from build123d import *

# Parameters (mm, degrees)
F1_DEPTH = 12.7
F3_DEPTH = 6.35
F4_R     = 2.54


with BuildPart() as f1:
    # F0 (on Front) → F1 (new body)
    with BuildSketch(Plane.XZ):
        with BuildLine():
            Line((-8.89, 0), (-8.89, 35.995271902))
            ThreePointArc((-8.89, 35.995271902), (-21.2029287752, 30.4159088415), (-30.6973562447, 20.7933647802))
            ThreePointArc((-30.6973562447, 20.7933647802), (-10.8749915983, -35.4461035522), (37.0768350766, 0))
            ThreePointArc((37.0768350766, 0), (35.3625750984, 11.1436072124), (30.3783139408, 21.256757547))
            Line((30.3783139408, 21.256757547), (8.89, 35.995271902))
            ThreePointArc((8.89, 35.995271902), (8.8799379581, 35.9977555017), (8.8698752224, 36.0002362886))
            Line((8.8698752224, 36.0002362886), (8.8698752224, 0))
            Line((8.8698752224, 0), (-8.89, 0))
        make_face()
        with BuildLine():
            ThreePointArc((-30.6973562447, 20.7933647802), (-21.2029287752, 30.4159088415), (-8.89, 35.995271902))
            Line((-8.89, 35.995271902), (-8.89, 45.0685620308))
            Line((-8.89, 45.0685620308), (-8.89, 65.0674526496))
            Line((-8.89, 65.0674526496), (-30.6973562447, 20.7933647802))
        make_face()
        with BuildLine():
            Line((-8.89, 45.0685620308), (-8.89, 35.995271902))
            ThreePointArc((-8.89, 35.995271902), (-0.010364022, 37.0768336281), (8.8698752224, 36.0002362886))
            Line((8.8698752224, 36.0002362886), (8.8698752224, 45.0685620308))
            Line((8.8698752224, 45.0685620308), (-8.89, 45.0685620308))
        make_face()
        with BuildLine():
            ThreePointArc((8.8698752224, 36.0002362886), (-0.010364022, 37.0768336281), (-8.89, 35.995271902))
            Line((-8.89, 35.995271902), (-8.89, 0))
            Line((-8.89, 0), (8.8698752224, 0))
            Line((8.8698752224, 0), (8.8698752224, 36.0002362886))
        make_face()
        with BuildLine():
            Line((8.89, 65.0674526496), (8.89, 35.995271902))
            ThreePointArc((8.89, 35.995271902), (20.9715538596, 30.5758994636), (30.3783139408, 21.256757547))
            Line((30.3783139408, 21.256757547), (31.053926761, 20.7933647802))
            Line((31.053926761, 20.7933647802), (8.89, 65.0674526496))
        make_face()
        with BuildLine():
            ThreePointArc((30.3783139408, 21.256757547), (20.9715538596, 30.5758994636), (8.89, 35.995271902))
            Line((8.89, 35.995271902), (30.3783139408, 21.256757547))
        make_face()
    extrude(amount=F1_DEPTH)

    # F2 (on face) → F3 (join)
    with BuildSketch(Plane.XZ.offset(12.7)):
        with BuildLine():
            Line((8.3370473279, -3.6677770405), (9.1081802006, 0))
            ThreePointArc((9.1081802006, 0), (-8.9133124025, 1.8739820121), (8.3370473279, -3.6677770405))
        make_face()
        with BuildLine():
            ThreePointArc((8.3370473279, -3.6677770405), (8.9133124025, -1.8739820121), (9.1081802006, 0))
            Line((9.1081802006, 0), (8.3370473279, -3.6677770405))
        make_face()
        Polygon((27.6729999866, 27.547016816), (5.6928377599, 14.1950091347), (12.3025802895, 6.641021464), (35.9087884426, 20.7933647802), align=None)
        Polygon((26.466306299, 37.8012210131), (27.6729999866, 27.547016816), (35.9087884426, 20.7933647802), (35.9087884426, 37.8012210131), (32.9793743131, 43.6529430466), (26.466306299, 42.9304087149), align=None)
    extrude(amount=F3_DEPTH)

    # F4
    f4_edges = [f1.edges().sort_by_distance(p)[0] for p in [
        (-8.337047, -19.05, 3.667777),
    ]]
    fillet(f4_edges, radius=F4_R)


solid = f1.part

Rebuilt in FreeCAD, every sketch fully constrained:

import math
import FreeCAD as App
import Part
import Sketcher

V = App.Vector
Q = App.Units.Quantity


def edges_at(feature, points):
    """Names of the edges that pass closest to the given points."""
    edges = feature.Shape.Edges
    near = lambda p: min(range(len(edges)), key=lambda i: edges[i].distToShape(Part.Vertex(*p))[0])
    return sorted({f"Edge{near(p) + 1}" for p in points})


def add_polygon(sketch, points):
    """Adds a closed chain of lines whose ends are joined by coincident constraints."""
    first, n = sketch.GeometryCount, len(points)
    for a, b in zip(points, points[1:] + points[:1]):
        sketch.addGeometry(Part.LineSegment(App.Vector(*a, 0), App.Vector(*b, 0)), False)
    for i in range(n):
        sketch.addConstraint(Sketcher.Constraint("Coincident", first + i, 2, first + (i + 1) % n, 1))

doc = App.newDocument("Part")
params = doc.addObject("Spreadsheet::Sheet", "Params")
for row, (alias, value) in enumerate([
    ("pad1_length", "0.5 in"),
    ("pad2_length", "0.25 in"),
    ("fillet_radius", "0.1 in"),
], start=1):
    params.set(f"A{row}", alias)
    params.set(f"B{row}", "=" + value)
    params.setAlias(f"B{row}", alias)

body = doc.addObject("PartDesign::Body", "Body")

# Sketch on XZ plane
sketch1 = body.newObject("Sketcher::SketchObject", "Sketch")
sketch1.AttachmentSupport = (doc.getObject("XZ_Plane"), [""])
sketch1.MapMode = "FlatFace"
sketch1.addGeometry(Part.ArcOfCircle(Part.Circle(V(0.000201, 0.000815, 0), V(0, 0, 1), 37.075995), math.radians(76.126895), math.radians(76.158927)), False)
sketch1.addGeometry(Part.LineSegment(V(8.869875, 36.000236, 0), V(8.869875, 45.068562, 0)), False)
sketch1.addGeometry(Part.LineSegment(V(8.869875, 45.068562, 0), V(-8.89, 45.068562, 0)), False)
sketch1.addGeometry(Part.LineSegment(V(-8.89, 45.068562, 0), V(-8.89, 65.067453, 0)), False)
sketch1.addGeometry(Part.LineSegment(V(-8.89, 65.067453, 0), V(-30.697356, 20.793365, 0)), False)
sketch1.addGeometry(Part.ArcOfCircle(Part.Circle(V(0, 0, 0), V(0, 0, 1), 37.076835), math.radians(145.887598), math.radians(360)), False)
sketch1.addGeometry(Part.ArcOfCircle(Part.Circle(V(0, 0, 0), V(0, 0, 1), 37.076835), math.radians(0), math.radians(34.981814)), False)
sketch1.addGeometry(Part.LineSegment(V(30.378314, 21.256758, 0), V(31.053927, 20.793365, 0)), False)
sketch1.addGeometry(Part.LineSegment(V(31.053927, 20.793365, 0), V(8.89, 65.067453, 0)), False)
sketch1.addGeometry(Part.LineSegment(V(8.89, 65.067453, 0), V(8.89, 35.995272, 0)), False)
sketch1.addConstraint(Sketcher.Constraint("Coincident", 0, 2, 1, 1))
sketch1.addConstraint(Sketcher.Constraint("Coincident", 1, 2, 2, 1))
sketch1.addConstraint(Sketcher.Constraint("Coincident", 2, 2, 3, 1))
sketch1.addConstraint(Sketcher.Constraint("Coincident", 3, 2, 4, 1))
sketch1.addConstraint(Sketcher.Constraint("Coincident", 4, 2, 5, 1))
sketch1.addConstraint(Sketcher.Constraint("Tangent", 5, 2, 6, 1))
sketch1.addConstraint(Sketcher.Constraint("Coincident", 6, 2, 7, 1))
sketch1.addConstraint(Sketcher.Constraint("Coincident", 7, 2, 8, 1))
sketch1.addConstraint(Sketcher.Constraint("Coincident", 8, 2, 9, 1))
sketch1.addConstraint(Sketcher.Constraint("Coincident", 9, 2, 0, 1))
sketch1.addConstraint(Sketcher.Constraint("Vertical", 1))
sketch1.addConstraint(Sketcher.Constraint("Horizontal", 2))
sketch1.addConstraint(Sketcher.Constraint("Vertical", 3))
sketch1.addConstraint(Sketcher.Constraint("Vertical", 9))
sketch1.addConstraint(Sketcher.Constraint("Coincident", 5, 3, -1, 1))
sketch1.addConstraint(Sketcher.Constraint("Equal", 5, 6))
sketch1.addConstraint(Sketcher.Constraint("Symmetric", 3, 2, 8, 2, -2))
sketch1.addConstraint(Sketcher.Constraint("PointOnObject", 5, 2, -1))
sketch1.addConstraint(Sketcher.Constraint("Horizontal", 4, 2, 7, 2))
sketch1.addConstraint(Sketcher.Constraint("DistanceX", 3, 2, 8, 2, Q("0.7 in")))
sketch1.addConstraint(Sketcher.Constraint("Radius", 0, 37.075995))
sketch1.addConstraint(Sketcher.Constraint("Radius", 5, 37.076835))
sketch1.addConstraint(Sketcher.Constraint("DistanceY", 0, 3, 0, 2, Q("1.4173 in")))
sketch1.addConstraint(Sketcher.Constraint("DistanceY", 3, 1, 3, 2, 19.998891))
sketch1.addConstraint(Sketcher.Constraint("DistanceY", 9, 2, 9, 1, 29.072181))
sketch1.addConstraint(Sketcher.Constraint("DistanceX", -1, 1, 0, 3, 0.000201))
sketch1.addConstraint(Sketcher.Constraint("Distance", 7, 0.819259))
sketch1.addConstraint(Sketcher.Constraint("DistanceY", -1, 1, 9, 2, 35.995272))
sketch1.addConstraint(Sketcher.Constraint("DistanceY", 0, 3, 4, 2, 20.792549))
sketch1.addConstraint(Sketcher.Constraint("DistanceX", 6, 2, 5, 2, 6.698521))
pad1 = body.newObject("PartDesign::Pad", "Pad")
pad1.Profile = sketch1
pad1.setExpression("Length", "Params.pad1_length")

# Sketch on XZ plane
sketch2 = body.newObject("Sketcher::SketchObject", "Sketch001")
sketch2.AttachmentSupport = (doc.getObject("XZ_Plane"), [""])
sketch2.MapMode = "FlatFace"
sketch2.AttachmentOffset = App.Placement(V(0, 0, 0.5 * 25.4), App.Rotation())
sketch2.addGeometry(Part.ArcOfCircle(Part.Circle(V(0, 0, 0), V(0, 0, 1), 9.10818), math.radians(0), math.radians(336.253521)), False)  # 0
sketch2.addGeometry(Part.ArcOfCircle(Part.Circle(V(0, 0, 0), V(0, 0, 1), 9.10818), math.radians(-23.746479), math.radians(0)), False)  # 1
add_polygon(sketch2, [(27.673, 27.547017), (5.692838, 14.195009), (12.30258, 6.641021), (35.908788, 20.793365), (35.908788, 37.801221), (32.979374, 43.652943), (26.466306, 42.930409), (26.466306, 37.801221)])  # lines 2-9
sketch2.addConstraint(Sketcher.Constraint("Tangent", 0, 1, 1, 2))
sketch2.addConstraint(Sketcher.Constraint("Coincident", 1, 1, 0, 2))
sketch2.addConstraint(Sketcher.Constraint("Vertical", 5))
sketch2.addConstraint(Sketcher.Constraint("Vertical", 8))
sketch2.addConstraint(Sketcher.Constraint("Coincident", 0, 3, -1, 1))
sketch2.addConstraint(Sketcher.Constraint("PointOnObject", 0, 1, -1))
sketch2.addConstraint(Sketcher.Constraint("Horizontal", 5, 2, 8, 2))
sketch2.addConstraint(Sketcher.Constraint("Radius", 0, 9.10818))
sketch2.addConstraint(Sketcher.Constraint("Distance", 3, 10.037501))
sketch2.addConstraint(Sketcher.Constraint("DistanceX", -1, 1, 9, 2, 27.673))
sketch2.addConstraint(Sketcher.Constraint("DistanceX", 0, 1, 3, 2, 3.1944))
sketch2.addConstraint(Sketcher.Constraint("DistanceY", 1, 1, 3, 2, 10.308799))
sketch2.addConstraint(Sketcher.Constraint("DistanceY", 3, 2, 5, 2, 31.1602))
sketch2.addConstraint(Sketcher.Constraint("DistanceY", 2, 2, 7, 2, 28.7354))
sketch2.addConstraint(Sketcher.Constraint("Distance", 2, 25.717769))
sketch2.addConstraint(Sketcher.Constraint("Distance", 4, 27.523479))
sketch2.addConstraint(Sketcher.Constraint("Distance", 9, 10.324961))
sketch2.addConstraint(Sketcher.Constraint("DistanceY", 5, 1, 5, 2, 17.007856))
sketch2.addConstraint(Sketcher.Constraint("DistanceY", 8, 2, 8, 1, 5.129188))
sketch2.addConstraint(Sketcher.Constraint("DistanceY", -1, 1, 2, 2, 14.195009))
sketch2.addConstraint(Sketcher.Constraint("DistanceY", 4, 2, 6, 2, 22.859578))
sketch2.addConstraint(Sketcher.Constraint("DistanceX", 7, 2, 6, 2, 6.513068))
pad2 = body.newObject("PartDesign::Pad", "Pad001")
pad2.Profile = sketch2
pad2.setExpression("Length", "Params.pad2_length")
doc.recompute()

fillet = body.newObject("PartDesign::Fillet", "Fillet")
fillet.Base = (pad2, edges_at(pad2, [(-8.913, -19.05, 1.874)]))
fillet.setExpression("Radius", "Params.fillet_radius")

doc.recompute()
